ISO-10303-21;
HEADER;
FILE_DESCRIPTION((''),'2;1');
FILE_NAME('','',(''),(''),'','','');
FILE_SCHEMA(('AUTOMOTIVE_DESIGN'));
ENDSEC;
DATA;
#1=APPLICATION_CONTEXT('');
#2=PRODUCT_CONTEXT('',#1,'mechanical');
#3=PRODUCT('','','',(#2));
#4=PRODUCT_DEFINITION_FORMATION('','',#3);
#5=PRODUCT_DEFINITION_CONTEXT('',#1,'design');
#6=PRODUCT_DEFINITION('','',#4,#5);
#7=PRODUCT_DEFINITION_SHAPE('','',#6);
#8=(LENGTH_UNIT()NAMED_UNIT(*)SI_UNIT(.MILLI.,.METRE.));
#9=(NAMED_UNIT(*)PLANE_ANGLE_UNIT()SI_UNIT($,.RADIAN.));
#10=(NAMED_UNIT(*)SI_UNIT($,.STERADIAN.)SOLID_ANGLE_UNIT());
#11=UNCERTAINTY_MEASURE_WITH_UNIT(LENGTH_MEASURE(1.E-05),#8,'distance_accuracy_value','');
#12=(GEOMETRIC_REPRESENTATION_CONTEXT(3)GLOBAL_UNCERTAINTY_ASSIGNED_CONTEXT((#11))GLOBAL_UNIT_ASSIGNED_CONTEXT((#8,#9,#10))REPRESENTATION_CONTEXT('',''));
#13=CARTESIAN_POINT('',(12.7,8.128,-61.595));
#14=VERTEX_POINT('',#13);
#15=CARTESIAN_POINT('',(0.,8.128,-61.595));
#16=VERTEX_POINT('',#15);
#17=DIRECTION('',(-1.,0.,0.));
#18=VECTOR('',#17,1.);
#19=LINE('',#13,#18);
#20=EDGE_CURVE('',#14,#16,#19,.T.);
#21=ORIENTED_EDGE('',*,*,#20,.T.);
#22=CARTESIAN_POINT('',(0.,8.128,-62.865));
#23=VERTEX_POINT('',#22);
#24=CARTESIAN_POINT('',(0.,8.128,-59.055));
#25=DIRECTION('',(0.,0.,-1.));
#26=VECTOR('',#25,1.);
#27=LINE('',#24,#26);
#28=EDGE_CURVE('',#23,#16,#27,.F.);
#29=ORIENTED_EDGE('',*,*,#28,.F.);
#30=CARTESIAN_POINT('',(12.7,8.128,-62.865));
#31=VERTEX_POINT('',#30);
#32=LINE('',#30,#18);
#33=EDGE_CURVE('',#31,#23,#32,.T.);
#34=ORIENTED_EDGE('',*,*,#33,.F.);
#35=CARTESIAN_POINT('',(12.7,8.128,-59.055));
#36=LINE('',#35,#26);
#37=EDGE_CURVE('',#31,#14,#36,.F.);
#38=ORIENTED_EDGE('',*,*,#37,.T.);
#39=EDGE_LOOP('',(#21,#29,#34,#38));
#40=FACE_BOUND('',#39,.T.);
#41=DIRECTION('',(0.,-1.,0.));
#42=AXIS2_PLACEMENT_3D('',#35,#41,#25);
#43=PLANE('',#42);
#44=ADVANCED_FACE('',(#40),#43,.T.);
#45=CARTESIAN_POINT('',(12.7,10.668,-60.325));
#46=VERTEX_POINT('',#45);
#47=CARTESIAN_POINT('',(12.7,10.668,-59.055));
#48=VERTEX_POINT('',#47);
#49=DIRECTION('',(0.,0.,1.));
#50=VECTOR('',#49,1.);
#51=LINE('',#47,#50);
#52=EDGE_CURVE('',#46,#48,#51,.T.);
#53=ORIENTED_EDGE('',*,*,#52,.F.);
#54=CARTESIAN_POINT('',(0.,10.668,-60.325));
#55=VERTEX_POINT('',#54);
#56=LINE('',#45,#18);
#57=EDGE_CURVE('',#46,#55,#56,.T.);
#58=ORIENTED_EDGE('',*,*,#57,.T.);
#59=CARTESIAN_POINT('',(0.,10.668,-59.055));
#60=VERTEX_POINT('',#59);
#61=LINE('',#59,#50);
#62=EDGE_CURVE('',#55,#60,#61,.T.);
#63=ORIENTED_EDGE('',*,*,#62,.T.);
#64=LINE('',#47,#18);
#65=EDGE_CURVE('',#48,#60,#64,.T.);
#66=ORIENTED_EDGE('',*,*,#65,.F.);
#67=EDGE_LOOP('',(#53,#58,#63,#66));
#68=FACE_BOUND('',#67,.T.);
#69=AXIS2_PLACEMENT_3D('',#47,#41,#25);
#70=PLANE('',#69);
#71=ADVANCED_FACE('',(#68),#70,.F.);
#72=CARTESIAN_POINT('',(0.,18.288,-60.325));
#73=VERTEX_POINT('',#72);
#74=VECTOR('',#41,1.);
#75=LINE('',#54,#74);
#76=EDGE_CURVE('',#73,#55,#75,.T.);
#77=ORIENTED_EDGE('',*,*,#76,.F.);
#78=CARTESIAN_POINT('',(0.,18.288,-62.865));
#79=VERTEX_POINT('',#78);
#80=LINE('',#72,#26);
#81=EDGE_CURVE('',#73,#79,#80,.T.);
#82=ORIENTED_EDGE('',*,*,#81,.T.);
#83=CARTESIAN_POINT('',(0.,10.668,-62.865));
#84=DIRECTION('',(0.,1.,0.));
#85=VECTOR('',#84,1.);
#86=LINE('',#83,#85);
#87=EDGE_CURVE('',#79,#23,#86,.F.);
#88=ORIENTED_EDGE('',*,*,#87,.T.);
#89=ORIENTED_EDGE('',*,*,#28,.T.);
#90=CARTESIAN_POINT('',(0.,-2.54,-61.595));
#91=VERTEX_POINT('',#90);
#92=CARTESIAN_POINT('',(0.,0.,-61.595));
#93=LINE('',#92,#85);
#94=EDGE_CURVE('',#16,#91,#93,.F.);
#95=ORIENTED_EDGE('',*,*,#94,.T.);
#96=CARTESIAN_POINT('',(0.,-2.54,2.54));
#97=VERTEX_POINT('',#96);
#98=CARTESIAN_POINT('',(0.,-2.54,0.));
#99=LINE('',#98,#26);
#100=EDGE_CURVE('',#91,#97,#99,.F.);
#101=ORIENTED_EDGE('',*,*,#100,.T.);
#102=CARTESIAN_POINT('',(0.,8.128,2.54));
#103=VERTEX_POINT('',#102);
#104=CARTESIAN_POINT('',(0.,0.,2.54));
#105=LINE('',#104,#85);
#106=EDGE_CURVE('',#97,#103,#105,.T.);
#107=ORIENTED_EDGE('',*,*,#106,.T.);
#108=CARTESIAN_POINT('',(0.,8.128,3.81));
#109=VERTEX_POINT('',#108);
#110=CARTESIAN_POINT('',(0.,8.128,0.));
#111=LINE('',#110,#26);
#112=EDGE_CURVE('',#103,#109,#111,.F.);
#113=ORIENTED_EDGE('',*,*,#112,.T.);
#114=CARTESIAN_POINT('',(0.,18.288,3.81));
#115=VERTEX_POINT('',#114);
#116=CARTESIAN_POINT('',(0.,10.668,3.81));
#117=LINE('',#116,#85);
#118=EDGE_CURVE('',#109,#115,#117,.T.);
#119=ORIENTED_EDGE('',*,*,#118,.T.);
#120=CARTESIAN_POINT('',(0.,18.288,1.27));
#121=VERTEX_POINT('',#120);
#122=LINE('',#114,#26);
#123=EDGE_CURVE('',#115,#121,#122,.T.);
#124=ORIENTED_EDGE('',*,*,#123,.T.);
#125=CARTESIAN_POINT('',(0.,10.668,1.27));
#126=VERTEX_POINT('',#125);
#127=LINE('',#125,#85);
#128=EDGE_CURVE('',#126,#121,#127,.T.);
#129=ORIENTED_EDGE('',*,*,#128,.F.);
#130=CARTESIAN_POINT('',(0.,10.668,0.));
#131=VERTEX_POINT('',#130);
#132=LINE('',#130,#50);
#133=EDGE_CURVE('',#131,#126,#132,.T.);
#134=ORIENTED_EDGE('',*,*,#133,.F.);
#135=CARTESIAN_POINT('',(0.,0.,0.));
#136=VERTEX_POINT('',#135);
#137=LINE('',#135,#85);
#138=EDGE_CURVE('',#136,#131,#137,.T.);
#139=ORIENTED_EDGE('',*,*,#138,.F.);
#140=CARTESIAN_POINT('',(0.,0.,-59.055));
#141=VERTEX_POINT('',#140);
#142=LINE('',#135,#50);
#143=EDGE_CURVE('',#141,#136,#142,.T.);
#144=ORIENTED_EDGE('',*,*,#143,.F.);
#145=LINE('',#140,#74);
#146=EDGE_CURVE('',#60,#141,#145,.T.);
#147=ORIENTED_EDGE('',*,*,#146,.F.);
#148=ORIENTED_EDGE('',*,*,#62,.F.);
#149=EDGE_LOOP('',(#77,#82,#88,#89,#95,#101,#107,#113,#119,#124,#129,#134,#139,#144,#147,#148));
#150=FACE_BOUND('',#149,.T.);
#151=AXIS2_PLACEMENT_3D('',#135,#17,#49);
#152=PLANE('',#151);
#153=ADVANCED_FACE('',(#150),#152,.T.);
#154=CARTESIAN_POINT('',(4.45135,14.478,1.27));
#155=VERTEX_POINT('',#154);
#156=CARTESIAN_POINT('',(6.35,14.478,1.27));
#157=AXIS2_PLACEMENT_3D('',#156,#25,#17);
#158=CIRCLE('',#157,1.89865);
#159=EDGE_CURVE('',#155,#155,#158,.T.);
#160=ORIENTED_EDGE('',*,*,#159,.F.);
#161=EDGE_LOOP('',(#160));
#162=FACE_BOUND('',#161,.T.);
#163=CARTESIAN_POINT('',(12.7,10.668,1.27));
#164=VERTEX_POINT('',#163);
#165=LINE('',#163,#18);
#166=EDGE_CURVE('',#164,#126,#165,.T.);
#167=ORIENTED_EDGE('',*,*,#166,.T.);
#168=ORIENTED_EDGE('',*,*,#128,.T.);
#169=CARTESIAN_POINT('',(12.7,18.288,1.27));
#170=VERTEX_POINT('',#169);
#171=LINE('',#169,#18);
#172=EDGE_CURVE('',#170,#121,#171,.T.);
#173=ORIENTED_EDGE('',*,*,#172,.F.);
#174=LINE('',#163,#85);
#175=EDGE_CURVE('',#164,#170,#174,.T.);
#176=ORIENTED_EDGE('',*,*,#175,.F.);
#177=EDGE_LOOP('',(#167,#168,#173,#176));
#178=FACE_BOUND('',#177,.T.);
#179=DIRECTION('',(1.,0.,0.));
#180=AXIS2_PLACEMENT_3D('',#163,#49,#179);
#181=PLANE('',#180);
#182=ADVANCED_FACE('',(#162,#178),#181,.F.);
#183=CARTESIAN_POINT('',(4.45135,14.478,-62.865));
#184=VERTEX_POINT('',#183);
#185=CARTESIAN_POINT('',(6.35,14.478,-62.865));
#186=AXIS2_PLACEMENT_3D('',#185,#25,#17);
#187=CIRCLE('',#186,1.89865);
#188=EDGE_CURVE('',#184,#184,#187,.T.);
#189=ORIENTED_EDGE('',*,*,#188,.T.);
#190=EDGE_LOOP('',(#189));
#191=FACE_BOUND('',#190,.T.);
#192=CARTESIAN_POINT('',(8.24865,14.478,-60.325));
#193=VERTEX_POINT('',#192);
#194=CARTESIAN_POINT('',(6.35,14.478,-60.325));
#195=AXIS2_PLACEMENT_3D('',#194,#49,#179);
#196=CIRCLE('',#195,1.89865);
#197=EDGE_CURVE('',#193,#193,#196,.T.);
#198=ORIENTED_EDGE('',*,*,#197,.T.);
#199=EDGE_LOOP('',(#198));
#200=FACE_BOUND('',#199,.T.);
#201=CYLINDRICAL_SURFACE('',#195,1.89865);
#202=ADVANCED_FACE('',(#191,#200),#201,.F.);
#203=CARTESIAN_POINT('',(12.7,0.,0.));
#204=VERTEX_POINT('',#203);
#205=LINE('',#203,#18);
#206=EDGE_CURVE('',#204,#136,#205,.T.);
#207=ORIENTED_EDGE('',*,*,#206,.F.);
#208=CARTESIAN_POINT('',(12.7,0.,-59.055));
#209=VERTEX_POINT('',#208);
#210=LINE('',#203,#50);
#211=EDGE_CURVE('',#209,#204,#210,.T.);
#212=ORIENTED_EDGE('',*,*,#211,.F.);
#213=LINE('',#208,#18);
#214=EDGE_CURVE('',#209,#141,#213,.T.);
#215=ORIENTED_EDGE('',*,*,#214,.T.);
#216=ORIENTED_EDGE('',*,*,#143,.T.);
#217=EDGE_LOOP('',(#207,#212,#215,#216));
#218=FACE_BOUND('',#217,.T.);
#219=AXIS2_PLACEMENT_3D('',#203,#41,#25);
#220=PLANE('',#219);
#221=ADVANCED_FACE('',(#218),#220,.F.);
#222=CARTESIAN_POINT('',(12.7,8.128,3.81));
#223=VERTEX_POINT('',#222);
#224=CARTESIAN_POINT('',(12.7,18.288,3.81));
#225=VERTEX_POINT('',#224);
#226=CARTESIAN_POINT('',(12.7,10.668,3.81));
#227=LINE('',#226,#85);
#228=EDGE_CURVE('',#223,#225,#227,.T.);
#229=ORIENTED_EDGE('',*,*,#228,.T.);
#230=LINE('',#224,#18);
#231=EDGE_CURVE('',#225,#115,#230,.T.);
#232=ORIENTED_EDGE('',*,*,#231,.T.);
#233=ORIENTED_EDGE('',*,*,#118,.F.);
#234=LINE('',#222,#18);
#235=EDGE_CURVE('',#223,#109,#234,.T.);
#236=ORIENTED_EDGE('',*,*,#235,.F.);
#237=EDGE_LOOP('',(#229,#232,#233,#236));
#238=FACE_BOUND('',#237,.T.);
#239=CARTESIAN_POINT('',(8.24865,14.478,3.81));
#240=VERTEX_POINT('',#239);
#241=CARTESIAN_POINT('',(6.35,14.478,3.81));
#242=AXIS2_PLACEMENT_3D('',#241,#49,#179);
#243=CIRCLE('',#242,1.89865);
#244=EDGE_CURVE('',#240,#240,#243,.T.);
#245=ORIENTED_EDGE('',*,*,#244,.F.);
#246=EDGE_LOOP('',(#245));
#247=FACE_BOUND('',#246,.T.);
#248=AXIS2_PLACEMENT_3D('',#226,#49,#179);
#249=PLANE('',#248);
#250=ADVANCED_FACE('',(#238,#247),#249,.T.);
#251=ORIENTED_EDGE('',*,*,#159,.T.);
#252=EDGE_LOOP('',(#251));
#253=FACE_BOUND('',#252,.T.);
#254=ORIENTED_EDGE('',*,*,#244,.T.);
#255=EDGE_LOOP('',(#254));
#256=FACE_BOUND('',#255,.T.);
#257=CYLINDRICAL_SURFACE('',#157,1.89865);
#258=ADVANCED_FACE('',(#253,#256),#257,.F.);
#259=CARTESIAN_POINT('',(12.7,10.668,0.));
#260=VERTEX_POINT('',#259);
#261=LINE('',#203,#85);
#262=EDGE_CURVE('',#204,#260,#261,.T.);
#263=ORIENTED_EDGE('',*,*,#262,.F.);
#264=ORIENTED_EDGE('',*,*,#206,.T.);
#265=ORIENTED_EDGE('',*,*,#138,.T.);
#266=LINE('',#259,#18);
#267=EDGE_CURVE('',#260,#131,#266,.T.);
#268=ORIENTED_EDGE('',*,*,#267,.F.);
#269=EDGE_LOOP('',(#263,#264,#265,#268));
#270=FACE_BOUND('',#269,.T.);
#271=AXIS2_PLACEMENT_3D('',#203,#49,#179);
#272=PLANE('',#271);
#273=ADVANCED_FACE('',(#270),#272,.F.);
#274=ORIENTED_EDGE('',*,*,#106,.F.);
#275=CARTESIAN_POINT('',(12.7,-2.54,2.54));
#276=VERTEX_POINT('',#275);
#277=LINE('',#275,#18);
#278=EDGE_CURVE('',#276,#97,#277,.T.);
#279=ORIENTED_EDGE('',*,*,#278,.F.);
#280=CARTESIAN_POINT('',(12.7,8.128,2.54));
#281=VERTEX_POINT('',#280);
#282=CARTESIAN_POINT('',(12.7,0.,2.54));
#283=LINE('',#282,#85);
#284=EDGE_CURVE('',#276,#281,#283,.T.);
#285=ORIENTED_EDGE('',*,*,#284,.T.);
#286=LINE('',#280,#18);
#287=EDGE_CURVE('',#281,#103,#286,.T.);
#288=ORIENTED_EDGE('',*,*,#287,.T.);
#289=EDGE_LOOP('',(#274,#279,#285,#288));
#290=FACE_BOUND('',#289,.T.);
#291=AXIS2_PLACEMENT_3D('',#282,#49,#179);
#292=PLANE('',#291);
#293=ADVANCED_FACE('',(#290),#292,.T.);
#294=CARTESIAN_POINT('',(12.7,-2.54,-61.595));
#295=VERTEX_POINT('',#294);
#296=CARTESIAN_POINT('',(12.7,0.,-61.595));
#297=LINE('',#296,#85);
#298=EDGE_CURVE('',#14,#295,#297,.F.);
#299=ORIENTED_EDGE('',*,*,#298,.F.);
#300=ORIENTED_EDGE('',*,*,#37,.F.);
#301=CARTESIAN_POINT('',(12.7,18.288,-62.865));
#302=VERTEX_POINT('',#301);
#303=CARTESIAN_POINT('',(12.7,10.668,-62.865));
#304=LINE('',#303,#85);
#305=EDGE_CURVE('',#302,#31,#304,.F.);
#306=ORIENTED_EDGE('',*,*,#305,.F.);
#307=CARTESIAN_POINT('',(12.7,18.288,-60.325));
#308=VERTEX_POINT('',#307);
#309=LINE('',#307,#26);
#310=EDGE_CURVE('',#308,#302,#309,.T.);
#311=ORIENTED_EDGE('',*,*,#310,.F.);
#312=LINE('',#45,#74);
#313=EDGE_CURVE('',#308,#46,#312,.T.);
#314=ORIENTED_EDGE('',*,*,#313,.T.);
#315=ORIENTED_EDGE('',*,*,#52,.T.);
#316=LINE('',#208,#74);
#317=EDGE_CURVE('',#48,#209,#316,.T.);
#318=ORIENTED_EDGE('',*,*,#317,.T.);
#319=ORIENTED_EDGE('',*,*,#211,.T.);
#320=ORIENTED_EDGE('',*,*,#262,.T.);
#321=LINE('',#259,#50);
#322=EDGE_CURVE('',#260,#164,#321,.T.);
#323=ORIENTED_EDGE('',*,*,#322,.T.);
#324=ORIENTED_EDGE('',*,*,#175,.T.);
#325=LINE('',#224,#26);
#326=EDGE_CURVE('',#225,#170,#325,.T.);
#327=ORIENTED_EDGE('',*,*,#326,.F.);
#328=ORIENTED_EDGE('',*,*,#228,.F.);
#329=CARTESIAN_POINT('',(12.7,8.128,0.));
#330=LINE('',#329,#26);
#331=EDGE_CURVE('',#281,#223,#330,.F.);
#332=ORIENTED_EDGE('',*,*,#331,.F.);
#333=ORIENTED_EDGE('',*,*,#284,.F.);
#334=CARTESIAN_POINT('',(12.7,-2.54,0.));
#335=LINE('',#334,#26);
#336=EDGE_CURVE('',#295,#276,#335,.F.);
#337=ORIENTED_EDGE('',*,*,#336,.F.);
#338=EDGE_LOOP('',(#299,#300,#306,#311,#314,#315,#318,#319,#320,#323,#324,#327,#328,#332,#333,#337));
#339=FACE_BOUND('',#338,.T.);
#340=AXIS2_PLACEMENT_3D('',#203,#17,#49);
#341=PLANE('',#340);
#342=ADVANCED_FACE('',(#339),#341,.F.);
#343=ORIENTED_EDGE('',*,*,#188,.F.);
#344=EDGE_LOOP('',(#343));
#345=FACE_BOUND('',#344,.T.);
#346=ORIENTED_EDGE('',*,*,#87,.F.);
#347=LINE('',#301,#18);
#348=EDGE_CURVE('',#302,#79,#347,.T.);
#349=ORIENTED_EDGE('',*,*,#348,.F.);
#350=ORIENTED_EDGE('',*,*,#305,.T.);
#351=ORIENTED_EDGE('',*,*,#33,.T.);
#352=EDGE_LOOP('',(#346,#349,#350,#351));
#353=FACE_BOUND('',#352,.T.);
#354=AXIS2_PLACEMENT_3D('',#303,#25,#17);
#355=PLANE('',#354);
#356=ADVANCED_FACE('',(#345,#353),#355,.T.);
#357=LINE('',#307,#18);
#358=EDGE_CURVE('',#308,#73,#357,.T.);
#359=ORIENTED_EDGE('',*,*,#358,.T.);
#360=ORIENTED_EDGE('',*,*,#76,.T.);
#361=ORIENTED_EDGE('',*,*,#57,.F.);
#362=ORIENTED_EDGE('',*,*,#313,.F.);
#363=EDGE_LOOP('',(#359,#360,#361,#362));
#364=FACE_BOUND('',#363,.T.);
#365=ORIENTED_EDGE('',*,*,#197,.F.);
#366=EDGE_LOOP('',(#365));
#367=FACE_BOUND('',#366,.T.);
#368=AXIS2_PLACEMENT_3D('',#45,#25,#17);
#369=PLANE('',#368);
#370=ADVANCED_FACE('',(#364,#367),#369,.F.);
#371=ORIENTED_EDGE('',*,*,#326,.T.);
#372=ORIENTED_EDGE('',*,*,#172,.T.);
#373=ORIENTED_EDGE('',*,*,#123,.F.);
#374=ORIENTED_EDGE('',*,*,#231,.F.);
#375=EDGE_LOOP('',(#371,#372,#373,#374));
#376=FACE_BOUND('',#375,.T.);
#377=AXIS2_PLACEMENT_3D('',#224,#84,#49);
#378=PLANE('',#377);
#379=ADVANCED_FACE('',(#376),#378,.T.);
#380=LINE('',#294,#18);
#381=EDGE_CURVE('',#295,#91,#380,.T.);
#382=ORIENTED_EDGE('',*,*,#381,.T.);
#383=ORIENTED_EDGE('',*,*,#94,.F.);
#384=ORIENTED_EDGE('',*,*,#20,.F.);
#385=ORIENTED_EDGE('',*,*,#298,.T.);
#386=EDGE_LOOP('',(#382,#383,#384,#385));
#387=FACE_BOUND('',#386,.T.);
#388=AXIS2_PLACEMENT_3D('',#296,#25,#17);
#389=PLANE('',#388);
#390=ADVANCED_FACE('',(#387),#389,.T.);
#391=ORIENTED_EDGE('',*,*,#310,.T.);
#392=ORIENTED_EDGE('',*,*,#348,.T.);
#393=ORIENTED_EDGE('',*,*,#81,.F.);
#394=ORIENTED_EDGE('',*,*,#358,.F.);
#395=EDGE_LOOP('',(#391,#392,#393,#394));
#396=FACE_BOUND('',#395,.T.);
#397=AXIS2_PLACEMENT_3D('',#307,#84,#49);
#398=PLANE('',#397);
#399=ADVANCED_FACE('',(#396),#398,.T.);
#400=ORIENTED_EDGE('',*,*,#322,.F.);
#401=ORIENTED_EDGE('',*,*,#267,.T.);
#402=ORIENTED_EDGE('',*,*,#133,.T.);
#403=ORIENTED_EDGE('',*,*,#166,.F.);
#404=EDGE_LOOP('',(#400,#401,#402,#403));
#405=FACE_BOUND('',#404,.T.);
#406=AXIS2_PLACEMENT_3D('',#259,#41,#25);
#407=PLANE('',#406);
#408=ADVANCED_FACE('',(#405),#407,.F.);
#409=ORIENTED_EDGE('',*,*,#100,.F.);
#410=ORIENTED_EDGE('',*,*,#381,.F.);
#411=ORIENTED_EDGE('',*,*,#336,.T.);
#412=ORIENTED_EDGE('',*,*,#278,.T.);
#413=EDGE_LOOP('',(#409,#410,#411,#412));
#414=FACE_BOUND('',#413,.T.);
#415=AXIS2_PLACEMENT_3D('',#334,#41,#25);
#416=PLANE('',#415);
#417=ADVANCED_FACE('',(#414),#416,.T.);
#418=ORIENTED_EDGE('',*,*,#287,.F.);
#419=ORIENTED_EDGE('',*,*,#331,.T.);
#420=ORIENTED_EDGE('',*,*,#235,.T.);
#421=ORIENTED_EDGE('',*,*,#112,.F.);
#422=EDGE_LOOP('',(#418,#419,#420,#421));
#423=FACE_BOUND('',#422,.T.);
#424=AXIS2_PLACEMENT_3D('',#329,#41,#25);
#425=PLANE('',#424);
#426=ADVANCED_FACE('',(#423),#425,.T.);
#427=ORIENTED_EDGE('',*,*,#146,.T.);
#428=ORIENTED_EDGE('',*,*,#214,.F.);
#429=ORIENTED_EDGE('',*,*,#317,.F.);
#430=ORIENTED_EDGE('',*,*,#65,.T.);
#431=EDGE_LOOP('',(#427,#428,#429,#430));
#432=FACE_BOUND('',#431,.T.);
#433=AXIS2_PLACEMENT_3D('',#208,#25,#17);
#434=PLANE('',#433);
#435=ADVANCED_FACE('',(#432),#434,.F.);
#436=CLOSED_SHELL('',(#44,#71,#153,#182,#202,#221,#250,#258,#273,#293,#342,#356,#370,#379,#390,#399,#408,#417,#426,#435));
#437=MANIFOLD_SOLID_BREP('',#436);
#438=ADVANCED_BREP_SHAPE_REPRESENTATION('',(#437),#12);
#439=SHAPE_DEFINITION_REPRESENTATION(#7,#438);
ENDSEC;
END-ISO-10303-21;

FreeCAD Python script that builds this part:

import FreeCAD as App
import Part
import Sketcher
Q = App.Units.Quantity


def add_polygon(sketch, points):
    """Adds a closed chain of lines whose ends are joined by coincident constraints."""
    first, n = sketch.GeometryCount, len(points)
    for a, b in zip(points, points[1:] + points[:1]):
        sketch.addGeometry(Part.LineSegment(App.Vector(*a, 0), App.Vector(*b, 0)), False)
    for i in range(n):
        sketch.addConstraint(Sketcher.Constraint("Coincident", first + i, 2, first + (i + 1) % n, 1))

doc = App.newDocument("Part")
body = doc.addObject("PartDesign::Body", "Body")

# Sketch on YZ plane
sketch1 = doc.addObject("Sketcher::SketchObject", "Sketch")
body.addObject(sketch1)
sketch1.AttachmentSupport = (doc.YZ_Plane, [""])
sketch1.MapMode = "FlatFace"
add_polygon(sketch1, [(10.7, 1.3), (18.3, 1.3), (18.3, 3.8), (8.1, 3.8), (8.1, 2.5), (-2.5, 2.5), (-2.5, -61.6), (8.1, -61.6), (8.1, -62.9), (18.3, -62.9), (18.3, -60.3), (10.7, -60.3), (10.7, -59.1), (0, -59.1), (0, 0), (10.7, 0)])  # lines 0-15
sketch1.addConstraint([
    Sketcher.Constraint("Horizontal", 0),
    Sketcher.Constraint("Vertical", 1),
    Sketcher.Constraint("Horizontal", 2),
    Sketcher.Constraint("Vertical", 3),
    Sketcher.Constraint("Horizontal", 4),
    Sketcher.Constraint("Vertical", 5),
    Sketcher.Constraint("Horizontal", 6),
    Sketcher.Constraint("Vertical", 7),
    Sketcher.Constraint("Horizontal", 8),
    Sketcher.Constraint("Vertical", 9),
    Sketcher.Constraint("Horizontal", 10),
    Sketcher.Constraint("Vertical", 11),
    Sketcher.Constraint("Horizontal", 12),
    Sketcher.Constraint("Vertical", 13),
    Sketcher.Constraint("Horizontal", 14),
    Sketcher.Constraint("Vertical", 15),
    Sketcher.Constraint("Coincident", 13, 2, -1, 1),
    Sketcher.Constraint("Vertical", 3, 2, 6, 2),
    Sketcher.Constraint("Vertical", 1, 2, 8, 2),
    Sketcher.Constraint("Vertical", 11, 2, 14, 2),
    Sketcher.Constraint("Equal", 6, 12),
    Sketcher.Constraint("Equal", 3, 7),
    Sketcher.Constraint("Equal", 1, 9),
    Sketcher.Constraint("Equal", 7, 11),
    Sketcher.Constraint("Equal", 11, 15),
    Sketcher.Constraint("DistanceX", 0, 1, 0, 2, Q("0.3 in")),
    Sketcher.Constraint("DistanceX", 2, 2, 2, 1, Q("0.4 in")),
    Sketcher.Constraint("DistanceY", 1, 1, 1, 2, Q("0.1 in")),
    Sketcher.Constraint("DistanceX", 4, 2, 4, 1, Q("0.42 in")),
    Sketcher.Constraint("DistanceY", 3, 2, 3, 1, Q("0.05 in")),
    Sketcher.Constraint("DistanceY", 5, 2, 5, 1, Q("2.525 in")),
])
pad1 = doc.addObject("PartDesign::Pad", "Pad")
body.addObject(pad1)
pad1.Profile = sketch1
pad1.Length = Q("0.5 in")

# Sketch on XY plane
sketch2 = doc.addObject("Sketcher::SketchObject", "Sketch001")
body.addObject(sketch2)
sketch2.AttachmentSupport = (doc.XY_Plane, [""])
sketch2.MapMode = "FlatFace"
sketch2.AttachmentOffset = App.Placement(App.Vector(0, 0, 0.05 * 25.4), App.Rotation())
sketch2.addGeometry(Part.Circle(App.Vector(6.3, 14.5, 0), App.Vector(0, 0, 1), 1.9), False)
sketch2.addConstraint([
    Sketcher.Constraint("Diameter", 0, Q("0.1495 in")),
    Sketcher.Constraint("DistanceX", -1, 1, 0, 3, Q("0.25 in")),
    Sketcher.Constraint("DistanceY", -1, 1, 0, 3, Q("0.57 in")),
])
doc.recompute()
hole = doc.addObject("PartDesign::Hole", "Hole")
body.addObject(hole)
hole.Profile = sketch2
hole.ThreadType = "None"
hole.Diameter = Q("0.1495 in")
hole.DepthType = "Dimension"
hole.Depth = Q("0.3 in")
hole.DrillPoint = "Angled"
hole.DrillPointAngle = 118
hole.Reversed = True

# Sketch on XY plane
sketch3 = doc.addObject("Sketcher::SketchObject", "Sketch002")
body.addObject(sketch3)
sketch3.AttachmentSupport = (doc.XY_Plane, [""])
sketch3.MapMode = "FlatFace"
sketch3.AttachmentOffset = App.Placement(App.Vector(0, 0, -2.375 * 25.4), App.Rotation())
sketch3.addGeometry(Part.Circle(App.Vector(6.3, 14.5, 0), App.Vector(0, 0, 1), 1.9), False)
sketch3.addConstraint([
    Sketcher.Constraint("Diameter", 0, Q("0.1495 in")),
    Sketcher.Constraint("DistanceX", -1, 1, 0, 3, Q("0.25 in")),
    Sketcher.Constraint("DistanceY", -1, 1, 0, 3, Q("0.57 in")),
])
doc.recompute()
hole2 = doc.addObject("PartDesign::Hole", "Hole001")
body.addObject(hole2)
hole2.Profile = sketch3
hole2.ThreadType = "None"
hole2.Diameter = Q("0.1495 in")
hole2.DepthType = "Dimension"
hole2.Depth = Q("0.3 in")
hole2.DrillPoint = "Angled"
hole2.DrillPointAngle = 118

doc.recompute()
